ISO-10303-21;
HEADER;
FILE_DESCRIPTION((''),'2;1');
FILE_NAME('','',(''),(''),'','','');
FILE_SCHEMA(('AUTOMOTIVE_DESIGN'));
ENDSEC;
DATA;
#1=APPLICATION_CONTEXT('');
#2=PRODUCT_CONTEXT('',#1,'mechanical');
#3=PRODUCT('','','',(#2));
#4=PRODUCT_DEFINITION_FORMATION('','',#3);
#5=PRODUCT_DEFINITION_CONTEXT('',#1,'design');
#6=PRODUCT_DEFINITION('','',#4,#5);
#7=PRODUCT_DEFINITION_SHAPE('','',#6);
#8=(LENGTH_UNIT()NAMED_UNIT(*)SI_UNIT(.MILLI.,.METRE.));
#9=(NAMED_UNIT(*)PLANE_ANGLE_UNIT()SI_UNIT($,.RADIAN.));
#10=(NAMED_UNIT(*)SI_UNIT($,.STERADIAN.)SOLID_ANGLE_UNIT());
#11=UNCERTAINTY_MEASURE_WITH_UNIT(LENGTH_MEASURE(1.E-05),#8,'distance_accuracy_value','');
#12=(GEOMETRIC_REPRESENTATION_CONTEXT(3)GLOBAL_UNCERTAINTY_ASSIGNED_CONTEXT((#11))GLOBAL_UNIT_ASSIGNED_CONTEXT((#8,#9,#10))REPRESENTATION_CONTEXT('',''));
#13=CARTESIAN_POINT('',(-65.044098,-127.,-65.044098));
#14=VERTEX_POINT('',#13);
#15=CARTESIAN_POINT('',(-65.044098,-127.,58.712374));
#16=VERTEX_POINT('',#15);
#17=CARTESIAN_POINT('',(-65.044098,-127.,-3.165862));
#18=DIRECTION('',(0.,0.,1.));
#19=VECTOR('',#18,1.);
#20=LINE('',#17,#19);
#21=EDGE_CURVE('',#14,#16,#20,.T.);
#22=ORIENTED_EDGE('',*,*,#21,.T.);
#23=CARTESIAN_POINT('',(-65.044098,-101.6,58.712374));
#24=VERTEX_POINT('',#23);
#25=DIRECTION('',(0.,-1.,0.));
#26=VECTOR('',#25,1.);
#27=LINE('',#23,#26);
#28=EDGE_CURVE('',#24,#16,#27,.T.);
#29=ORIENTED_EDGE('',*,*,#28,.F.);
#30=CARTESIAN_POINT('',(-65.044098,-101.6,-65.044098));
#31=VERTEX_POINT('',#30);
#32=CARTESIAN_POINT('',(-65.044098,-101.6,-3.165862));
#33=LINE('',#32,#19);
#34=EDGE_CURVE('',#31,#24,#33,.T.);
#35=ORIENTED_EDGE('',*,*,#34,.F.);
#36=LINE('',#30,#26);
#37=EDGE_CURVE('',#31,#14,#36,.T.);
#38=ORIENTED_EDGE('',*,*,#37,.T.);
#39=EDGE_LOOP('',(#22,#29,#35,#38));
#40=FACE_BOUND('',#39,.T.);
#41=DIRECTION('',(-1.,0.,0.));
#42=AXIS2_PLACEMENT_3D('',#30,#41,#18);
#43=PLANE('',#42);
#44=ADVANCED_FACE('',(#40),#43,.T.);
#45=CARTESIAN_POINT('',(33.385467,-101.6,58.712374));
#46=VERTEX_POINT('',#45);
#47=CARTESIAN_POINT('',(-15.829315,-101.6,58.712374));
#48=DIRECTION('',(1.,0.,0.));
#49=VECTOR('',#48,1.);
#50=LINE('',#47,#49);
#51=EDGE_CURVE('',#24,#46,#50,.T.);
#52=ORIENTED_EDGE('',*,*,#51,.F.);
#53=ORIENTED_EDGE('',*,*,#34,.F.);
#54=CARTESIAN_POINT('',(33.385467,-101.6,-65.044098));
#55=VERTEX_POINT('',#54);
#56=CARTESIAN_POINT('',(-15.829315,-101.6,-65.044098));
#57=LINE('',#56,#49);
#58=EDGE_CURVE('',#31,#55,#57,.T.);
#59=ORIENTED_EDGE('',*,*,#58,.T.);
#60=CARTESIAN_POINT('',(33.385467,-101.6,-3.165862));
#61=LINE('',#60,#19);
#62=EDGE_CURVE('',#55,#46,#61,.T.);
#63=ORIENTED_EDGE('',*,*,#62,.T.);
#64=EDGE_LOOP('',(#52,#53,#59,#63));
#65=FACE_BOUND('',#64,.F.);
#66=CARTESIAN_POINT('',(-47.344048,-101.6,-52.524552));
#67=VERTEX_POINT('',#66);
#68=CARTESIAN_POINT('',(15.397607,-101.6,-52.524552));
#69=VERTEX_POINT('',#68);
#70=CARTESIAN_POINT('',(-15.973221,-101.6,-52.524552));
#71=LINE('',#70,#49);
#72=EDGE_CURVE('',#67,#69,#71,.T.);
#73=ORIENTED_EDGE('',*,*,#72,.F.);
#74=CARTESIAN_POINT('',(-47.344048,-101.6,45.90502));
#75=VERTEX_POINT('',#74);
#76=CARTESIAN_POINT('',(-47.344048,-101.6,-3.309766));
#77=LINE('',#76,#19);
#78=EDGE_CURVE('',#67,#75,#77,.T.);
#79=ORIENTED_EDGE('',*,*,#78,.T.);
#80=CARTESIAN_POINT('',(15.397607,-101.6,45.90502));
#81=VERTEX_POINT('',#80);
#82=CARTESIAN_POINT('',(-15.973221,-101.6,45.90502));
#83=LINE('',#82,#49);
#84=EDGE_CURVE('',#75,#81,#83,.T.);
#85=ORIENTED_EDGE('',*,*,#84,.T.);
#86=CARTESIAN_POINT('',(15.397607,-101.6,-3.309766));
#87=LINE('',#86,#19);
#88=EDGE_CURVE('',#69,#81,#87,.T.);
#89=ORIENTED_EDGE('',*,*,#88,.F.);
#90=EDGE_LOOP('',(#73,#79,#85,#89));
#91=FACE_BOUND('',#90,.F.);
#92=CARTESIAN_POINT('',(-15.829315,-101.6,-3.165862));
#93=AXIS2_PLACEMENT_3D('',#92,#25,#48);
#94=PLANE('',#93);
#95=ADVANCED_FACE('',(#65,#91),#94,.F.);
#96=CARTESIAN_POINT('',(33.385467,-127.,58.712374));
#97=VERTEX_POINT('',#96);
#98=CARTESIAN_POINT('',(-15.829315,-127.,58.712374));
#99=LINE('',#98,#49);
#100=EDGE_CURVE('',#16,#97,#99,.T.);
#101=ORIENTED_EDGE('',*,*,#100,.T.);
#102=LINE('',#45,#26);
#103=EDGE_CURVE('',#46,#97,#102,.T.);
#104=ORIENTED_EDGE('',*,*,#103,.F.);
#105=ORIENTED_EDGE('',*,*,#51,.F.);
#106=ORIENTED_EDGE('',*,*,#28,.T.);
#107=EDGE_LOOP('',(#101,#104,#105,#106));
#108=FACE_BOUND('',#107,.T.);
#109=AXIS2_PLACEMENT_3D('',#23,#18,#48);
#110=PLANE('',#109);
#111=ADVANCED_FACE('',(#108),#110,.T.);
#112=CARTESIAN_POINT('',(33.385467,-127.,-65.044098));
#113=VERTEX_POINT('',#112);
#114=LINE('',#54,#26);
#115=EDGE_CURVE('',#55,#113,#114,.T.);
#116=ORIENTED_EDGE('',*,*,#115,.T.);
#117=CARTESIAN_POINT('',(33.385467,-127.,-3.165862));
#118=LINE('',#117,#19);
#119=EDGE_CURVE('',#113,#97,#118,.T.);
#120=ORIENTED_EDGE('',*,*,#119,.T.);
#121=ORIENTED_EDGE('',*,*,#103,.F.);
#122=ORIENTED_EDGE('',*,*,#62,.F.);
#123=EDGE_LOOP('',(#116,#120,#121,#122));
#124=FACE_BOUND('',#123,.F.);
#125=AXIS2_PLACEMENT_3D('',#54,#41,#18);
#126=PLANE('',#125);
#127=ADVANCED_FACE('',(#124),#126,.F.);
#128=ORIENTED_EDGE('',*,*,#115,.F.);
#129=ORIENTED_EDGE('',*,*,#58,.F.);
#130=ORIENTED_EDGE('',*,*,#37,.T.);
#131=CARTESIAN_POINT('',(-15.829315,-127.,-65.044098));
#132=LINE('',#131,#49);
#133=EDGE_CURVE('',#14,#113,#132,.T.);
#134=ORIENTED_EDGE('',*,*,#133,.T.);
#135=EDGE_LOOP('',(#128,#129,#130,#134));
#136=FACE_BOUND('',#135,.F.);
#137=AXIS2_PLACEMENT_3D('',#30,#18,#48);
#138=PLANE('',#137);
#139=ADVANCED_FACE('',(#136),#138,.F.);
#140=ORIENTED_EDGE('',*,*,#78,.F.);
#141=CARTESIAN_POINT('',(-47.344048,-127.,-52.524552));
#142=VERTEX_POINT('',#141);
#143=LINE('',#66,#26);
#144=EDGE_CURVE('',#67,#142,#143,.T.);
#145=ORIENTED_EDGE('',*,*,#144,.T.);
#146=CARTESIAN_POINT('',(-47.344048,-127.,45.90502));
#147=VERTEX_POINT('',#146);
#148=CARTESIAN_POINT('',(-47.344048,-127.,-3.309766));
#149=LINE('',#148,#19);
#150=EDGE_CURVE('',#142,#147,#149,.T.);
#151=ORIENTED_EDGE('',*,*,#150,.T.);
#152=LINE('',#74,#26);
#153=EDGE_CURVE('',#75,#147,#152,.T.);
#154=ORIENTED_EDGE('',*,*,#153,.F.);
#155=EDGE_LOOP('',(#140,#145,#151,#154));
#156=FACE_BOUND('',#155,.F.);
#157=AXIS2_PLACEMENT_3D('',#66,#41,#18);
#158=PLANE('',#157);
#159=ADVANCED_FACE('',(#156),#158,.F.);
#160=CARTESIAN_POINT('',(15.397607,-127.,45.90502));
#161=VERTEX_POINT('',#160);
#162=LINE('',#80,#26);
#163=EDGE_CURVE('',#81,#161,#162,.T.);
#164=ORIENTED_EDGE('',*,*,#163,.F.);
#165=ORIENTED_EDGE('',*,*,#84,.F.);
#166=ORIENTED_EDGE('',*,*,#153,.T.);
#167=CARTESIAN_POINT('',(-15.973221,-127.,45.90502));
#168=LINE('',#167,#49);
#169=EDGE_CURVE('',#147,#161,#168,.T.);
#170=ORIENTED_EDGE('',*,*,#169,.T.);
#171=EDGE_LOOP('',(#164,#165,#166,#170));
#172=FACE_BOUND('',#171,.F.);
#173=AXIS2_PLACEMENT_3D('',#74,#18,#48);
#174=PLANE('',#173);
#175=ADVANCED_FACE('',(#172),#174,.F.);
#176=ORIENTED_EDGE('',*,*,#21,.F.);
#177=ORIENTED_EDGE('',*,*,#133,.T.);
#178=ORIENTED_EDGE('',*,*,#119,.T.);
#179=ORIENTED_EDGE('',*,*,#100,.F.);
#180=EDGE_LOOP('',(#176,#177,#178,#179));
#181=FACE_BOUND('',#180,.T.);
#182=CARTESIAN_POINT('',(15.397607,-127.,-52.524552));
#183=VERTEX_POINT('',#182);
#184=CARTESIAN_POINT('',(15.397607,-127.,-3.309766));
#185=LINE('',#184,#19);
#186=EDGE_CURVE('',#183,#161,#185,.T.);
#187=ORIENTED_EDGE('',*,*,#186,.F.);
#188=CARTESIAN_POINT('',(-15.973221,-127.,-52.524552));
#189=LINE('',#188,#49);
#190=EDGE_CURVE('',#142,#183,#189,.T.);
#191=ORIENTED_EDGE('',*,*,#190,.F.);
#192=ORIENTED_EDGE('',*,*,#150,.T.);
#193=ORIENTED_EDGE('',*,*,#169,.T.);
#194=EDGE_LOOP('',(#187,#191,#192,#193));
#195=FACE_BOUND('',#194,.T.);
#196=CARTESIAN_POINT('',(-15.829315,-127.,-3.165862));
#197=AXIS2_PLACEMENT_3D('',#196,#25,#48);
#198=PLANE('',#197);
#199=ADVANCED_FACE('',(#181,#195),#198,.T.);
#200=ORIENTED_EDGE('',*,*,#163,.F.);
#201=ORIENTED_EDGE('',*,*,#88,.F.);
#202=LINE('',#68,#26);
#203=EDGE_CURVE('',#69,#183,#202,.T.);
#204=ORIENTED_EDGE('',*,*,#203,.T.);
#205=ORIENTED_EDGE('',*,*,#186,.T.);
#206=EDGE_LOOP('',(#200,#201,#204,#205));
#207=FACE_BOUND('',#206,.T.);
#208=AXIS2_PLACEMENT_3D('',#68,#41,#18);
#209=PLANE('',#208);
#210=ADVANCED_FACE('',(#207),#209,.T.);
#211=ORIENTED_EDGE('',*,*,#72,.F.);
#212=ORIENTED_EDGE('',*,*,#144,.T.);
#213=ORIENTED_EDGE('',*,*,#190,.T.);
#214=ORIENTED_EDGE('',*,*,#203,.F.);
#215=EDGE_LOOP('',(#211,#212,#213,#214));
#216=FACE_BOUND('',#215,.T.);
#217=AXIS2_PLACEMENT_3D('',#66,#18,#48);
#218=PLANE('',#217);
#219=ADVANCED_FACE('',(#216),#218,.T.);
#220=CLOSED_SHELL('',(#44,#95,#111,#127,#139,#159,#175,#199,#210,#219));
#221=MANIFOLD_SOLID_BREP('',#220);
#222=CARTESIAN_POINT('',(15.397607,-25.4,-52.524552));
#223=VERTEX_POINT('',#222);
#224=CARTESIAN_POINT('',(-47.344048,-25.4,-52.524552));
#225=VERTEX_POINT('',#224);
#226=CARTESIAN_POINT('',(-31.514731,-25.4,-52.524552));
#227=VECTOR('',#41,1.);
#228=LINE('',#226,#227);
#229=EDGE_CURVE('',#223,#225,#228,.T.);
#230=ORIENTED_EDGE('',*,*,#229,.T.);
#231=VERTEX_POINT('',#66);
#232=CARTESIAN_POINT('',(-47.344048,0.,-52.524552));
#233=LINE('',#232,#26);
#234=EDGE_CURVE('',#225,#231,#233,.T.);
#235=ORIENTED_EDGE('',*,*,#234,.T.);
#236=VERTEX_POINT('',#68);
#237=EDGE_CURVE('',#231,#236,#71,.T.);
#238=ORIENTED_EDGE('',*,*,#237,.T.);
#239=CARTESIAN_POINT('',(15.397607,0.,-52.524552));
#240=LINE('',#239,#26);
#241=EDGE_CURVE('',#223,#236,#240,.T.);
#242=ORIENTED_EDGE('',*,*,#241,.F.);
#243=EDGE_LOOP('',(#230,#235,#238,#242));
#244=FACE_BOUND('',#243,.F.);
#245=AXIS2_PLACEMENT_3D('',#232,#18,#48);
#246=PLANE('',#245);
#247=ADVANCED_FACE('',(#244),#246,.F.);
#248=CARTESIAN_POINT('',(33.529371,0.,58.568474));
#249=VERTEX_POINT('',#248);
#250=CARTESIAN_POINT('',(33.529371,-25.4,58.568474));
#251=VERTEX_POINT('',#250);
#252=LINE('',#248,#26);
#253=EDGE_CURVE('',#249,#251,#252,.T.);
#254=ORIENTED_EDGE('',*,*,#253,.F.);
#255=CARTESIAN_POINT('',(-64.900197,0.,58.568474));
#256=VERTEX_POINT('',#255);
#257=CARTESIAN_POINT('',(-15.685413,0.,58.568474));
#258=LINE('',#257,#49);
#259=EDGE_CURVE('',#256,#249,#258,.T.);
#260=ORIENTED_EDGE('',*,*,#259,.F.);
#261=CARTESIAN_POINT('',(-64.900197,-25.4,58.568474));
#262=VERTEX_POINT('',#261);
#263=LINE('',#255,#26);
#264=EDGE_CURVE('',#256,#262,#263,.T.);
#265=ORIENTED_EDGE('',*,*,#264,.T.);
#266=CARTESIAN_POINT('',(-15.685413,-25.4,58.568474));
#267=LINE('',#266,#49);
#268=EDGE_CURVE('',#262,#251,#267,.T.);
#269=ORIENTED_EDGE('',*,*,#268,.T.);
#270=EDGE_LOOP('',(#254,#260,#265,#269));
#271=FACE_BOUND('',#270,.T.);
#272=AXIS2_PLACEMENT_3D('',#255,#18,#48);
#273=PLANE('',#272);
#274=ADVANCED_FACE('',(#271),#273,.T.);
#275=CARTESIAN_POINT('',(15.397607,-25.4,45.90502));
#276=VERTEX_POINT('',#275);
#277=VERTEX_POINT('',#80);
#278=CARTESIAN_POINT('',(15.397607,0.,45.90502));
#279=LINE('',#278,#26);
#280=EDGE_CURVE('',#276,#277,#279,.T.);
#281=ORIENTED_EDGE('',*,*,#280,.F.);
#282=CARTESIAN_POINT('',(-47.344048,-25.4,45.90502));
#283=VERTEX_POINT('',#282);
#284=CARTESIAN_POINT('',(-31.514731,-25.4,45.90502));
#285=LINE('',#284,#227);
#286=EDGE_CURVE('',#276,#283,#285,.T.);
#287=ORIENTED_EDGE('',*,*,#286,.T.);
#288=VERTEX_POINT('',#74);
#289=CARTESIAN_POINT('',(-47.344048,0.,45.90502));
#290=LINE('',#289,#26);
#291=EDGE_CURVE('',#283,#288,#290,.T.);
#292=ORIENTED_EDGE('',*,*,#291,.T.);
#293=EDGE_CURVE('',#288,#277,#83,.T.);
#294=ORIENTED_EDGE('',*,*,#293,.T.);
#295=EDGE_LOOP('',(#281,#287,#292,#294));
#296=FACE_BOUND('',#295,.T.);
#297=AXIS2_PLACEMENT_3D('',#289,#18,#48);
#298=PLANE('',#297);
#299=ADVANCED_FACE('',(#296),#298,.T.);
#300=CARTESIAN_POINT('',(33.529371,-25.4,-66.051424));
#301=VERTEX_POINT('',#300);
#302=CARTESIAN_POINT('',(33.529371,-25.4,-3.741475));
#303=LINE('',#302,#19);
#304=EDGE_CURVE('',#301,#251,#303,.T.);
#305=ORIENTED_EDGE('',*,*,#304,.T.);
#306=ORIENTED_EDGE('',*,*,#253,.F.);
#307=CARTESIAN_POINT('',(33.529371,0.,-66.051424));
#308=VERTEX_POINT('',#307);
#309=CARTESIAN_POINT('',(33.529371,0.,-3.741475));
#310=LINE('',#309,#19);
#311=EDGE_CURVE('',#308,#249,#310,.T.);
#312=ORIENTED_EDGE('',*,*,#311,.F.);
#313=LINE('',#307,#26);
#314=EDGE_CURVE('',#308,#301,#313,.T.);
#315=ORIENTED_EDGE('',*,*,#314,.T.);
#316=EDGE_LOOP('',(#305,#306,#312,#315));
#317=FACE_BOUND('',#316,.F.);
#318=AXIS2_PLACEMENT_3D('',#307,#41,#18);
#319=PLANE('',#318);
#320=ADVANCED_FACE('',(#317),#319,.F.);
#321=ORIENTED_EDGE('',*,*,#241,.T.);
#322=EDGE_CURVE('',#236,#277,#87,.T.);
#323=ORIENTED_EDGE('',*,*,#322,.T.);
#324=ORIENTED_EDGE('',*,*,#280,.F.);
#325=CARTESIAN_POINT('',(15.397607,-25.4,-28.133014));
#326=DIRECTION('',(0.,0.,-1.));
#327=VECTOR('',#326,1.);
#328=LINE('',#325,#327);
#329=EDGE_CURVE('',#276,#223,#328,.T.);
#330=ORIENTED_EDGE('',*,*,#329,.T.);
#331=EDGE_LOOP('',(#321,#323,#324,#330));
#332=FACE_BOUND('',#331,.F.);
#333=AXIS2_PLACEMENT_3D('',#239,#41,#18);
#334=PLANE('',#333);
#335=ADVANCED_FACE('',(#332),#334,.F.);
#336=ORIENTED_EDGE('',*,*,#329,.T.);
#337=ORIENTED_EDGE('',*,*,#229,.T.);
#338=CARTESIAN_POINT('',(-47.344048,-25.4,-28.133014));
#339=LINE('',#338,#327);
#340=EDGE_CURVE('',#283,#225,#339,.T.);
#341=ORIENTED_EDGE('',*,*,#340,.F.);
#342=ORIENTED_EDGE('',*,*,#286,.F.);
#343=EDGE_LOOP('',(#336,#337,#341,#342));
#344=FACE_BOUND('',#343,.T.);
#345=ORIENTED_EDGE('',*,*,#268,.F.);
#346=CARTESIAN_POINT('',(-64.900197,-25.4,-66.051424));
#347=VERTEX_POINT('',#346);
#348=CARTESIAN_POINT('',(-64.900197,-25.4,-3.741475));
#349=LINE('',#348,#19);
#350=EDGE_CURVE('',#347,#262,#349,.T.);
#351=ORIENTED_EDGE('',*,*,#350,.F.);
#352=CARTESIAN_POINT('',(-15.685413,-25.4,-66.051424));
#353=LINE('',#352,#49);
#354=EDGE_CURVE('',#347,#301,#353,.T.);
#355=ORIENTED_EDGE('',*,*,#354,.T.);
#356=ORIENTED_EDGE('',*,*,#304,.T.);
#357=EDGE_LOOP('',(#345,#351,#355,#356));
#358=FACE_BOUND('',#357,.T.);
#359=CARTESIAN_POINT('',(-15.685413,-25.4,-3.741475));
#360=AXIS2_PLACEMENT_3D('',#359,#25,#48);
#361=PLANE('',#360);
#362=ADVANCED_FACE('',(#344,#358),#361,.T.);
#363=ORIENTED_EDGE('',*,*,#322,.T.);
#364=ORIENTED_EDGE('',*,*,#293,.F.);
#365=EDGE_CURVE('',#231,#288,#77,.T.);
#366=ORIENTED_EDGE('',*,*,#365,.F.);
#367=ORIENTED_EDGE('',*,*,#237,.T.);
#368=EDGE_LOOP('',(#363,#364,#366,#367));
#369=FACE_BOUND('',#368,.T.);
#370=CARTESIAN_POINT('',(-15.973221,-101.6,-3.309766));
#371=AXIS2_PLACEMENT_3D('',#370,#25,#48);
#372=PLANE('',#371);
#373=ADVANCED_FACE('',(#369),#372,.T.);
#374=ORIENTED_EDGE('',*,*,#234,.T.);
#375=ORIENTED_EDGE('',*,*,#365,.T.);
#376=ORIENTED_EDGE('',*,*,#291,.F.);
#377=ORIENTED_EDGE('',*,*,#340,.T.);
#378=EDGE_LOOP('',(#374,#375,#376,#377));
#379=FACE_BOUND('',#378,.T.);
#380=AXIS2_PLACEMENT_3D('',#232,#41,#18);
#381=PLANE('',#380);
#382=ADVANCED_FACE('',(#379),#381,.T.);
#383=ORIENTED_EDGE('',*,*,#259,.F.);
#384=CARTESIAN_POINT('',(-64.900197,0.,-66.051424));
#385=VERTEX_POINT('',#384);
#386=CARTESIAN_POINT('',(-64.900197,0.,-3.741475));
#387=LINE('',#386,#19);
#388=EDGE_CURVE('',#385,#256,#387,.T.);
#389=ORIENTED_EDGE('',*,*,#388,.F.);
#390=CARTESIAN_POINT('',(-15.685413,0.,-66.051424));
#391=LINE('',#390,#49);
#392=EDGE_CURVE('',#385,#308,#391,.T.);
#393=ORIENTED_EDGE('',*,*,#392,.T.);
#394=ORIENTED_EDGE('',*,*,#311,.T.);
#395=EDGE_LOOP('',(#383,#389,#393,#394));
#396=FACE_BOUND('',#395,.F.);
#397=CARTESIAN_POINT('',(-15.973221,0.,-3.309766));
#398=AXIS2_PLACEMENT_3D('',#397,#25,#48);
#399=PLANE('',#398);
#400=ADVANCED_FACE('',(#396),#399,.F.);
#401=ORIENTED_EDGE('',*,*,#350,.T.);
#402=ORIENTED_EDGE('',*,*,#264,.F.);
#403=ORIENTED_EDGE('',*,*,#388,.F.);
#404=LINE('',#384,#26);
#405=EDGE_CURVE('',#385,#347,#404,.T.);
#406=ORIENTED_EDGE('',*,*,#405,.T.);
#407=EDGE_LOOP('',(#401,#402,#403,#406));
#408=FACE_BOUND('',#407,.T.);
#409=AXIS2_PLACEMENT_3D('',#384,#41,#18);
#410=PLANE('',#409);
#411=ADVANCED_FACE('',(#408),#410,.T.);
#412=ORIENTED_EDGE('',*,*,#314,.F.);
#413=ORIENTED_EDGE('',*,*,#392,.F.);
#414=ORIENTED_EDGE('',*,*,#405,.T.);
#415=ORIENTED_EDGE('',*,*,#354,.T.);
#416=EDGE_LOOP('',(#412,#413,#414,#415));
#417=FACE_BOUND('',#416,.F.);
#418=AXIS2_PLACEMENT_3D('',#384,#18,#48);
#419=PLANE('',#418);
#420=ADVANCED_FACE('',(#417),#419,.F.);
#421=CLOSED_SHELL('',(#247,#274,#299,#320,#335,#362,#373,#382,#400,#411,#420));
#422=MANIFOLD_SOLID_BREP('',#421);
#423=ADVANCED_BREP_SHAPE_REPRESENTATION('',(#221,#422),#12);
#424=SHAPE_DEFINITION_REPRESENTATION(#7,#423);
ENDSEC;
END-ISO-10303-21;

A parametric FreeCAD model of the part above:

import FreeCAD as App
import Part
import Sketcher

V = App.Vector
Q = App.Units.Quantity


def add_polygon(sketch, points):
    """Adds a closed chain of lines whose ends are joined by coincident constraints."""
    first, n = sketch.GeometryCount, len(points)
    for a, b in zip(points, points[1:] + points[:1]):
        sketch.addGeometry(Part.LineSegment(App.Vector(*a, 0), App.Vector(*b, 0)), False)
    for i in range(n):
        sketch.addConstraint(Sketcher.Constraint("Coincident", first + i, 2, first + (i + 1) % n, 1))

doc = App.newDocument("Part")
params = doc.addObject("Spreadsheet::Sheet", "Params")
for row, (alias, value) in enumerate([
    ("pad1_length", "1 in"),
    ("pad2_length", "4 in"),
    ("pad3_length", "1 in"),
], start=1):
    params.set(f"A{row}", alias)
    params.set(f"B{row}", "=" + value)
    params.setAlias(f"B{row}", alias)

body = doc.addObject("PartDesign::Body", "Body")

# Sketch on XZ plane
sketch1 = body.newObject("Sketcher::SketchObject", "Sketch")
sketch1.AttachmentSupport = (doc.getObject("XZ_Plane"), [""])
sketch1.MapMode = "FlatFace"
add_polygon(sketch1, [(-64.900197, 58.568474), (-64.900197, -66.051424), (33.529371, -66.051424), (33.529371, 58.568474)])  # lines 0-3
sketch1.addConstraint([
    Sketcher.Constraint("Vertical", 0),
    Sketcher.Constraint("Horizontal", 1),
    Sketcher.Constraint("Vertical", 2),
    Sketcher.Constraint("Horizontal", 3),
    Sketcher.Constraint("DistanceY", 0, 2, 0, 1, Q("124.619898 mm")),
    Sketcher.Constraint("DistanceX", 1, 1, 1, 2, Q("98.429568 mm")),
    Sketcher.Constraint("DistanceX", -1, 1, 1, 2, Q("33.529371 mm")),
    Sketcher.Constraint("DistanceY", 0, 2, -1, 1, Q("66.051424 mm")),
])
pad1 = body.newObject("PartDesign::Pad", "Pad")
pad1.Profile = sketch1
pad1.setExpression("Length", "Params.pad1_length")

# Sketch on XZ plane
sketch2 = body.newObject("Sketcher::SketchObject", "Sketch001")
sketch2.AttachmentSupport = (doc.getObject("XZ_Plane"), [""])
sketch2.MapMode = "FlatFace"
add_polygon(sketch2, [(-47.344048, 45.90502), (-47.344048, -52.524552), (15.397607, -52.524552), (15.397607, 45.90502)])  # lines 0-3
sketch2.addConstraint([
    Sketcher.Constraint("Vertical", 0),
    Sketcher.Constraint("Horizontal", 1),
    Sketcher.Constraint("Vertical", 2),
    Sketcher.Constraint("Horizontal", 3),
    Sketcher.Constraint("DistanceX", 1, 1, 1, 2, Q("62.741655 mm")),
    Sketcher.Constraint("DistanceY", 0, 2, 0, 1, Q("98.429572 mm")),
    Sketcher.Constraint("DistanceX", 0, 2, -1, 1, Q("47.344048 mm")),
    Sketcher.Constraint("DistanceY", -1, 1, 2, 2, Q("45.90502 mm")),
])
pad2 = body.newObject("PartDesign::Pad", "Pad001")
pad2.Profile = sketch2
pad2.setExpression("Length", "Params.pad2_length")
body2 = doc.addObject("PartDesign::Body", "Body001")

# Sketch on XZ plane
sketch3 = body2.newObject("Sketcher::SketchObject", "Sketch002")
sketch3.AttachmentSupport = (doc.getObject("XZ_Plane001"), [""])
sketch3.MapMode = "FlatFace"
sketch3.AttachmentOffset = App.Placement(V(0, 0, 4 * 25.4), App.Rotation())
add_polygon(sketch3, [(-65.044098, 58.712374), (-65.044098, -65.044098), (33.385467, -65.044098), (33.385467, 58.712374)])  # lines 0-3
add_polygon(sketch3, [(15.397607, -52.524552), (-47.344048, -52.524552), (-47.344048, 45.90502), (15.397607, 45.90502)])  # lines 4-7
sketch3.addConstraint([
    Sketcher.Constraint("Vertical", 0),
    Sketcher.Constraint("Horizontal", 1),
    Sketcher.Constraint("Vertical", 2),
    Sketcher.Constraint("Horizontal", 3),
    Sketcher.Constraint("Horizontal", 4),
    Sketcher.Constraint("Vertical", 5),
    Sketcher.Constraint("Horizontal", 6),
    Sketcher.Constraint("Vertical", 7),
    Sketcher.Constraint("DistanceY", 0, 2, -1, 1, Q("65.044098 mm")),
    Sketcher.Constraint("DistanceX", 1, 1, 1, 2, Q("98.429565 mm")),
    Sketcher.Constraint("DistanceX", 4, 2, 4, 1, Q("62.741655 mm")),
    Sketcher.Constraint("DistanceY", 0, 2, 0, 1, Q("123.756472 mm")),
    Sketcher.Constraint("DistanceY", 5, 1, 5, 2, Q("98.429572 mm")),
    Sketcher.Constraint("DistanceX", 4, 2, -1, 1, Q("47.344048 mm")),
    Sketcher.Constraint("DistanceY", -1, 1, 5, 2, Q("45.90502 mm")),
    Sketcher.Constraint("DistanceX", 0, 2, 4, 2, Q("17.700049 mm")),
])
pad3 = body2.newObject("PartDesign::Pad", "Pad002")
pad3.Profile = sketch3
pad3.setExpression("Length", "Params.pad3_length")

doc.recompute()
